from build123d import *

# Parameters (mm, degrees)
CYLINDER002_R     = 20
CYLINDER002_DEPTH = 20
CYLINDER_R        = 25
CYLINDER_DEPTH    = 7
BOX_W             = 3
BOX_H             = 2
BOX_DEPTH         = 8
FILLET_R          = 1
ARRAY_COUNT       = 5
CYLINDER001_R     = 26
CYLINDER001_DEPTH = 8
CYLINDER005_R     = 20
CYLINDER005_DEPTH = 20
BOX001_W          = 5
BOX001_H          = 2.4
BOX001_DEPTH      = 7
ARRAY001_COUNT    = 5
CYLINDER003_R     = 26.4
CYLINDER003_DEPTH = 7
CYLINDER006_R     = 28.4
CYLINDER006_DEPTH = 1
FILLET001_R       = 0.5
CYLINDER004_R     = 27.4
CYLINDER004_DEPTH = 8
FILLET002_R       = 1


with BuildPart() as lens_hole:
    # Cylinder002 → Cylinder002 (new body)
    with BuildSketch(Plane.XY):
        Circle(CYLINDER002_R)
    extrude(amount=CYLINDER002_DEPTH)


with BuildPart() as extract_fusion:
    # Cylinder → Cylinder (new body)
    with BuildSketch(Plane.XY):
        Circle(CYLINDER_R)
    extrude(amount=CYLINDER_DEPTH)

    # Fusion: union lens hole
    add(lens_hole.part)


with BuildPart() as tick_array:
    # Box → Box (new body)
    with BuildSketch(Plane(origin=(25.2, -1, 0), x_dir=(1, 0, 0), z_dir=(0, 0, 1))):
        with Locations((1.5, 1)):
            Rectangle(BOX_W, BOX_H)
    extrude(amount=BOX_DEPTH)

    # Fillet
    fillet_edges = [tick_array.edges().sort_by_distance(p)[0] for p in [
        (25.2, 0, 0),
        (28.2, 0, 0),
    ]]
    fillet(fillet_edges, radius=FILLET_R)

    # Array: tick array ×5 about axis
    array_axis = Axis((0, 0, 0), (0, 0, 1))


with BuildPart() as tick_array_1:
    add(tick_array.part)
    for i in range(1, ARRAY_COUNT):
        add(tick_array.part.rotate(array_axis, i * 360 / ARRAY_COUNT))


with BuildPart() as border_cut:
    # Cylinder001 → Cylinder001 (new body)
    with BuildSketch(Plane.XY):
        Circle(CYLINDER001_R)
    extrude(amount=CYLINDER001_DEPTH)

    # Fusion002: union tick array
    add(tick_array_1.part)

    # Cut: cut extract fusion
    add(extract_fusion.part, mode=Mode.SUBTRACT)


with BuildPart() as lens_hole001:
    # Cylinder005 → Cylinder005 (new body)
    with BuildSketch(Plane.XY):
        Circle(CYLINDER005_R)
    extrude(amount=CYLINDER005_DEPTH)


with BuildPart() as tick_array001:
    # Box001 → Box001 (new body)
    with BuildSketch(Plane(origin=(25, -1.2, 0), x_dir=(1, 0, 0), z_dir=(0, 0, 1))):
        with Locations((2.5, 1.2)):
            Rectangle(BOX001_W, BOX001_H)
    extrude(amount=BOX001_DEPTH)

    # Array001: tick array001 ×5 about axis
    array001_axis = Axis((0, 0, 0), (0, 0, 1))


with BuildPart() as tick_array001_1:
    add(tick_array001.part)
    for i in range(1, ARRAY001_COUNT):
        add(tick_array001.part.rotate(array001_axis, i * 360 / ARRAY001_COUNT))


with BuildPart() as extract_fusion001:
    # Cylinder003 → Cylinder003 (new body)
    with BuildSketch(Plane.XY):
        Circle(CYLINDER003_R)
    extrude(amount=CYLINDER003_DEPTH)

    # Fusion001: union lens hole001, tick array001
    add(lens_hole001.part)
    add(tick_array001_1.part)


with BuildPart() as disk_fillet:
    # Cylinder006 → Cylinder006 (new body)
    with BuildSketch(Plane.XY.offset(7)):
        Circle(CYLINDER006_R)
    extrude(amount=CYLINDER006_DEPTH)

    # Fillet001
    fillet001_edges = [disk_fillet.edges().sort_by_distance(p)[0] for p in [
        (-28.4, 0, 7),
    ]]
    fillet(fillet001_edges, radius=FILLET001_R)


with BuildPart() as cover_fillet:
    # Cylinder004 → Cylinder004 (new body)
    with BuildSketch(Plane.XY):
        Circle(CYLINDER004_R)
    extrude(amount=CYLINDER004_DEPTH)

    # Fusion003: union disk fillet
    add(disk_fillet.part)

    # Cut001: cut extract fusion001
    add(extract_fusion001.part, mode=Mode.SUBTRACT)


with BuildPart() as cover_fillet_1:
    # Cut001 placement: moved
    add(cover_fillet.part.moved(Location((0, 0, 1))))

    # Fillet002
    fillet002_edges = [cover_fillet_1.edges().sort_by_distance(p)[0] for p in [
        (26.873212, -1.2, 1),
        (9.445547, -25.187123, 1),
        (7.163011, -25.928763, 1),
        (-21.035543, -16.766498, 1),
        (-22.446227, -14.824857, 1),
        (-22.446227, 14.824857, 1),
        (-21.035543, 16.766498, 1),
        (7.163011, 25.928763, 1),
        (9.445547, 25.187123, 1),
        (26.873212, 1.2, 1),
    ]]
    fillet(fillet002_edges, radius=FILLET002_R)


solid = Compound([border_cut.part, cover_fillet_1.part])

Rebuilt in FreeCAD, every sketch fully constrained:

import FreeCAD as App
import Part
import Sketcher

V = App.Vector


def edges_at(feature, points):
    """Names of the edges that pass closest to the given points."""
    edges = feature.Shape.Edges
    near = lambda p: min(range(len(edges)), key=lambda i: edges[i].distToShape(Part.Vertex(*p))[0])
    return sorted({f"Edge{near(p) + 1}" for p in points})

doc = App.newDocument("Part")
body = doc.addObject("PartDesign::Body", "Body")

# Sketch on XY plane
sketch1 = doc.addObject("Sketcher::SketchObject", "Sketch")
body.addObject(sketch1)
sketch1.AttachmentSupport = (doc.XY_Plane, [""])
sketch1.MapMode = "FlatFace"
sketch1.addGeometry(Part.Circle(V(0, 0, 0), V(0, 0, 1), 20), False)
sketch1.addConstraint([
    Sketcher.Constraint("Coincident", 0, 3, -1, 1),
    Sketcher.Constraint("Diameter", 0, 40.0),
])
pad1 = doc.addObject("PartDesign::Pad", "Pad")
body.addObject(pad1)
pad1.Profile = sketch1
pad1.Length = 20
body2 = doc.addObject("PartDesign::Body", "Body001")

# Sketch on XY plane
sketch2 = doc.addObject("Sketcher::SketchObject", "Sketch001")
body2.addObject(sketch2)
sketch2.AttachmentSupport = (doc.getObject("XY_Plane001"), [""])
sketch2.MapMode = "FlatFace"
sketch2.addGeometry(Part.Circle(V(0, 0, 0), V(0, 0, 1), 25), False)
sketch2.addConstraint([
    Sketcher.Constraint("Coincident", 0, 3, -1, 1),
    Sketcher.Constraint("Diameter", 0, 50.0),
])
pad2 = doc.addObject("PartDesign::Pad", "Pad001")
body2.addObject(pad2)
pad2.Profile = sketch2
pad2.Length = 7
doc.recompute()

boolean = doc.addObject("PartDesign::Boolean", "Boolean")
body2.addObject(boolean)
boolean.Type = "Fuse"
boolean.addObjects([body])
body3 = doc.addObject("PartDesign::Body", "Body002")

# Sketch on XY plane
sketch3 = doc.addObject("Sketcher::SketchObject", "Sketch002")
body3.addObject(sketch3)
sketch3.AttachmentSupport = (doc.getObject("XY_Plane002"), [""])
sketch3.MapMode = "FlatFace"
sketch3.addGeometry([
    Part.LineSegment(V(25.2, 1, 0), V(25.2, -1, 0)),
    Part.LineSegment(V(25.2, -1, 0), V(28.2, -1, 0)),
    Part.LineSegment(V(28.2, -1, 0), V(28.2, 1, 0)),
    Part.LineSegment(V(28.2, 1, 0), V(25.2, 1, 0)),
], False)
sketch3.addConstraint([
    Sketcher.Constraint("Coincident", 0, 2, 1, 1),
    Sketcher.Constraint("Coincident", 1, 2, 2, 1),
    Sketcher.Constraint("Coincident", 2, 2, 3, 1),
    Sketcher.Constraint("Coincident", 3, 2, 0, 1),
    Sketcher.Constraint("Vertical", 0),
    Sketcher.Constraint("Horizontal", 1),
    Sketcher.Constraint("Vertical", 2),
    Sketcher.Constraint("Horizontal", 3),
    Sketcher.Constraint("DistanceX", 1, 1, 1, 2, 3.0),
    Sketcher.Constraint("DistanceY", 0, 2, 0, 1, 2.0),
    Sketcher.Constraint("DistanceY", 0, 2, -1, 1, 1.0),
    Sketcher.Constraint("DistanceX", -1, 1, 0, 2, 25.2),
])
pad3 = doc.addObject("PartDesign::Pad", "Pad002")
body3.addObject(pad3)
pad3.Profile = sketch3
pad3.Length = 8
doc.recompute()

fillet = doc.addObject("PartDesign::Fillet", "Fillet")
body3.addObject(fillet)
fillet.Base = (pad3, edges_at(pad3, [(25.2, 0, 0), (28.2, 0, 0)]))
fillet.Radius = 1
body4 = doc.addObject("PartDesign::Body", "Body003")
body4.AllowCompound = True
doc.recompute()

body4.BaseFeature = body3
doc.recompute()

body5 = doc.addObject("PartDesign::Body", "Body004")
body5.BaseFeature = body3
body5.Placement = App.Placement(V(0, 0, 0), App.Rotation(V(0, 0, 1), 72))
boolean2 = doc.addObject("PartDesign::Boolean", "Boolean001")
body4.addObject(boolean2)
boolean2.Type = "Fuse"
boolean2.addObjects([body5])
doc.recompute()

body6 = doc.addObject("PartDesign::Body", "Body005")
body6.BaseFeature = body3
body6.Placement = App.Placement(V(0, 0, 0), App.Rotation(V(0, 0, 1), 144))
boolean3 = doc.addObject("PartDesign::Boolean", "Boolean002")
body4.addObject(boolean3)
boolean3.Type = "Fuse"
boolean3.addObjects([body6])
doc.recompute()

body7 = doc.addObject("PartDesign::Body", "Body006")
body7.BaseFeature = body3
body7.Placement = App.Placement(V(0, 0, 0), App.Rotation(V(0, 0, 1), 216))
boolean4 = doc.addObject("PartDesign::Boolean", "Boolean003")
body4.addObject(boolean4)
boolean4.Type = "Fuse"
boolean4.addObjects([body7])
doc.recompute()

body3.Placement = App.Placement(V(0, 0, 0), App.Rotation(V(0, 0, 1), 288))
boolean5 = doc.addObject("PartDesign::Boolean", "Boolean004")
body4.addObject(boolean5)
boolean5.Type = "Fuse"
boolean5.addObjects([body3])
body8 = doc.addObject("PartDesign::Body", "Body007")

# Sketch on XY plane
sketch4 = doc.addObject("Sketcher::SketchObject", "Sketch003")
body8.addObject(sketch4)
sketch4.AttachmentSupport = (doc.getObject("XY_Plane007"), [""])
sketch4.MapMode = "FlatFace"
sketch4.addGeometry(Part.Circle(V(0, 0, 0), V(0, 0, 1), 26), False)
sketch4.addConstraint([
    Sketcher.Constraint("Coincident", 0, 3, -1, 1),
    Sketcher.Constraint("Diameter", 0, 52.0),
])
pad4 = doc.addObject("PartDesign::Pad", "Pad003")
body8.addObject(pad4)
pad4.Profile = sketch4
pad4.Length = 8
doc.recompute()

boolean6 = doc.addObject("PartDesign::Boolean", "Boolean005")
body8.addObject(boolean6)
boolean6.Type = "Fuse"
boolean6.addObjects([body4])
doc.recompute()

boolean7 = doc.addObject("PartDesign::Boolean", "Boolean006")
body8.addObject(boolean7)
boolean7.Type = "Cut"
boolean7.addObjects([body2])
body9 = doc.addObject("PartDesign::Body", "Body008")

# Sketch on XY plane
sketch5 = doc.addObject("Sketcher::SketchObject", "Sketch004")
body9.addObject(sketch5)
sketch5.AttachmentSupport = (doc.getObject("XY_Plane008"), [""])
sketch5.MapMode = "FlatFace"
sketch5.addGeometry(Part.Circle(V(0, 0, 0), V(0, 0, 1), 20), False)
sketch5.addConstraint([
    Sketcher.Constraint("Coincident", 0, 3, -1, 1),
    Sketcher.Constraint("Diameter", 0, 40.0),
])
pad5 = doc.addObject("PartDesign::Pad", "Pad004")
body9.addObject(pad5)
pad5.Profile = sketch5
pad5.Length = 20
body10 = doc.addObject("PartDesign::Body", "Body009")

# Sketch on XY plane
sketch6 = doc.addObject("Sketcher::SketchObject", "Sketch005")
body10.addObject(sketch6)
sketch6.AttachmentSupport = (doc.getObject("XY_Plane009"), [""])
sketch6.MapMode = "FlatFace"
sketch6.addGeometry([
    Part.LineSegment(V(25, 1.2, 0), V(25, -1.2, 0)),
    Part.LineSegment(V(25, -1.2, 0), V(30, -1.2, 0)),
    Part.LineSegment(V(30, -1.2, 0), V(30, 1.2, 0)),
    Part.LineSegment(V(30, 1.2, 0), V(25, 1.2, 0)),
], False)
sketch6.addConstraint([
    Sketcher.Constraint("Coincident", 0, 2, 1, 1),
    Sketcher.Constraint("Coincident", 1, 2, 2, 1),
    Sketcher.Constraint("Coincident", 2, 2, 3, 1),
    Sketcher.Constraint("Coincident", 3, 2, 0, 1),
    Sketcher.Constraint("Vertical", 0),
    Sketcher.Constraint("Horizontal", 1),
    Sketcher.Constraint("Vertical", 2),
    Sketcher.Constraint("Horizontal", 3),
    Sketcher.Constraint("DistanceX", 1, 1, 1, 2, 5.0),
    Sketcher.Constraint("DistanceY", 0, 2, 0, 1, 2.4),
    Sketcher.Constraint("DistanceX", -1, 1, 0, 2, 25.0),
    Sketcher.Constraint("DistanceY", 0, 2, -1, 1, 1.2),
])
pad6 = doc.addObject("PartDesign::Pad", "Pad005")
body10.addObject(pad6)
pad6.Profile = sketch6
pad6.Length = 7
body11 = doc.addObject("PartDesign::Body", "Body010")
body11.AllowCompound = True
doc.recompute()

body11.BaseFeature = body10
doc.recompute()

body12 = doc.addObject("PartDesign::Body", "Body011")
body12.BaseFeature = body10
body12.Placement = App.Placement(V(0, 0, 0), App.Rotation(V(0, 0, 1), 72))
boolean8 = doc.addObject("PartDesign::Boolean", "Boolean007")
body11.addObject(boolean8)
boolean8.Type = "Fuse"
boolean8.addObjects([body12])
doc.recompute()

body13 = doc.addObject("PartDesign::Body", "Body012")
body13.BaseFeature = body10
body13.Placement = App.Placement(V(0, 0, 0), App.Rotation(V(0, 0, 1), 144))
boolean9 = doc.addObject("PartDesign::Boolean", "Boolean008")
body11.addObject(boolean9)
boolean9.Type = "Fuse"
boolean9.addObjects([body13])
doc.recompute()

body14 = doc.addObject("PartDesign::Body", "Body013")
body14.BaseFeature = body10
body14.Placement = App.Placement(V(0, 0, 0), App.Rotation(V(0, 0, 1), 216))
boolean10 = doc.addObject("PartDesign::Boolean", "Boolean009")
body11.addObject(boolean10)
boolean10.Type = "Fuse"
boolean10.addObjects([body14])
doc.recompute()

body10.Placement = App.Placement(V(0, 0, 0), App.Rotation(V(0, 0, 1), 288))
boolean11 = doc.addObject("PartDesign::Boolean", "Boolean010")
body11.addObject(boolean11)
boolean11.Type = "Fuse"
boolean11.addObjects([body10])
body15 = doc.addObject("PartDesign::Body", "Body014")

# Sketch on XY plane
sketch7 = doc.addObject("Sketcher::SketchObject", "Sketch006")
body15.addObject(sketch7)
sketch7.AttachmentSupport = (doc.getObject("XY_Plane014"), [""])
sketch7.MapMode = "FlatFace"
sketch7.addGeometry(Part.Circle(V(0, 0, 0), V(0, 0, 1), 26), False)
sketch7.addConstraint([
    Sketcher.Constraint("Coincident", 0, 3, -1, 1),
    Sketcher.Constraint("Diameter", 0, 52.8),
])
pad7 = doc.addObject("PartDesign::Pad", "Pad006")
body15.addObject(pad7)
pad7.Profile = sketch7
pad7.Length = 7
doc.recompute()

boolean12 = doc.addObject("PartDesign::Boolean", "Boolean011")
body15.addObject(boolean12)
boolean12.Type = "Fuse"
boolean12.addObjects([body9])
doc.recompute()

boolean13 = doc.addObject("PartDesign::Boolean", "Boolean012")
body15.addObject(boolean13)
boolean13.Type = "Fuse"
boolean13.addObjects([body11])
body16 = doc.addObject("PartDesign::Body", "Body015")

# Sketch on XY plane
sketch8 = doc.addObject("Sketcher::SketchObject", "Sketch007")
body16.addObject(sketch8)
sketch8.AttachmentSupport = (doc.getObject("XY_Plane015"), [""])
sketch8.MapMode = "FlatFace"
sketch8.AttachmentOffset = App.Placement(V(0, 0, 7), App.Rotation())
sketch8.addGeometry(Part.Circle(V(0, 0, 0), V(0, 0, 1), 28), False)
sketch8.addConstraint([
    Sketcher.Constraint("Coincident", 0, 3, -1, 1),
    Sketcher.Constraint("Diameter", 0, 56.8),
])
pad8 = doc.addObject("PartDesign::Pad", "Pad007")
body16.addObject(pad8)
pad8.Profile = sketch8
pad8.Length = 1
doc.recompute()

fillet2 = doc.addObject("PartDesign::Fillet", "Fillet001")
body16.addObject(fillet2)
fillet2.Base = (pad8, edges_at(pad8, [(-28.4, 0, 7)]))
fillet2.Radius = 0.5
body17 = doc.addObject("PartDesign::Body", "Body016")

# Sketch on XY plane
sketch9 = doc.addObject("Sketcher::SketchObject", "Sketch008")
body17.addObject(sketch9)
sketch9.AttachmentSupport = (doc.getObject("XY_Plane016"), [""])
sketch9.MapMode = "FlatFace"
sketch9.addGeometry(Part.Circle(V(0, 0, 0), V(0, 0, 1), 27), False)
sketch9.addConstraint([
    Sketcher.Constraint("Coincident", 0, 3, -1, 1),
    Sketcher.Constraint("Diameter", 0, 54.8),
])
pad9 = doc.addObject("PartDesign::Pad", "Pad008")
body17.addObject(pad9)
pad9.Profile = sketch9
pad9.Length = 8
doc.recompute()

boolean14 = doc.addObject("PartDesign::Boolean", "Boolean013")
body17.addObject(boolean14)
boolean14.Type = "Fuse"
boolean14.addObjects([body16])
doc.recompute()

boolean15 = doc.addObject("PartDesign::Boolean", "Boolean014")
body17.addObject(boolean15)
boolean15.Type = "Cut"
boolean15.addObjects([body15])
body18 = doc.addObject("PartDesign::Body", "Body017")
doc.recompute()

body17.Placement = App.Placement(V(0, 0, 1), App.Rotation(V(0, 0, 1), 0))
boolean16 = doc.addObject("PartDesign::Boolean", "Boolean015")
body18.addObject(boolean16)
boolean16.Type = "Fuse"
boolean16.addObjects([body17])
doc.recompute()

fillet3 = doc.addObject("PartDesign::Fillet", "Fillet002")
body18.addObject(fillet3)
fillet3.Base = (boolean16, edges_at(boolean16, [
    (26.873, -1.2, 1),
    (9.446, -25.187, 1),
    (7.163, -25.929, 1),
    (-21.036, -16.766, 1),
    (-22.446, -14.825, 1),
    (-22.446, 14.825, 1),
    (-21.036, 16.766, 1),
    (7.163, 25.929, 1),
    (9.446, 25.187, 1),
    (26.873, 1.2, 1),
]))
fillet3.Radius = 1

doc.recompute()
